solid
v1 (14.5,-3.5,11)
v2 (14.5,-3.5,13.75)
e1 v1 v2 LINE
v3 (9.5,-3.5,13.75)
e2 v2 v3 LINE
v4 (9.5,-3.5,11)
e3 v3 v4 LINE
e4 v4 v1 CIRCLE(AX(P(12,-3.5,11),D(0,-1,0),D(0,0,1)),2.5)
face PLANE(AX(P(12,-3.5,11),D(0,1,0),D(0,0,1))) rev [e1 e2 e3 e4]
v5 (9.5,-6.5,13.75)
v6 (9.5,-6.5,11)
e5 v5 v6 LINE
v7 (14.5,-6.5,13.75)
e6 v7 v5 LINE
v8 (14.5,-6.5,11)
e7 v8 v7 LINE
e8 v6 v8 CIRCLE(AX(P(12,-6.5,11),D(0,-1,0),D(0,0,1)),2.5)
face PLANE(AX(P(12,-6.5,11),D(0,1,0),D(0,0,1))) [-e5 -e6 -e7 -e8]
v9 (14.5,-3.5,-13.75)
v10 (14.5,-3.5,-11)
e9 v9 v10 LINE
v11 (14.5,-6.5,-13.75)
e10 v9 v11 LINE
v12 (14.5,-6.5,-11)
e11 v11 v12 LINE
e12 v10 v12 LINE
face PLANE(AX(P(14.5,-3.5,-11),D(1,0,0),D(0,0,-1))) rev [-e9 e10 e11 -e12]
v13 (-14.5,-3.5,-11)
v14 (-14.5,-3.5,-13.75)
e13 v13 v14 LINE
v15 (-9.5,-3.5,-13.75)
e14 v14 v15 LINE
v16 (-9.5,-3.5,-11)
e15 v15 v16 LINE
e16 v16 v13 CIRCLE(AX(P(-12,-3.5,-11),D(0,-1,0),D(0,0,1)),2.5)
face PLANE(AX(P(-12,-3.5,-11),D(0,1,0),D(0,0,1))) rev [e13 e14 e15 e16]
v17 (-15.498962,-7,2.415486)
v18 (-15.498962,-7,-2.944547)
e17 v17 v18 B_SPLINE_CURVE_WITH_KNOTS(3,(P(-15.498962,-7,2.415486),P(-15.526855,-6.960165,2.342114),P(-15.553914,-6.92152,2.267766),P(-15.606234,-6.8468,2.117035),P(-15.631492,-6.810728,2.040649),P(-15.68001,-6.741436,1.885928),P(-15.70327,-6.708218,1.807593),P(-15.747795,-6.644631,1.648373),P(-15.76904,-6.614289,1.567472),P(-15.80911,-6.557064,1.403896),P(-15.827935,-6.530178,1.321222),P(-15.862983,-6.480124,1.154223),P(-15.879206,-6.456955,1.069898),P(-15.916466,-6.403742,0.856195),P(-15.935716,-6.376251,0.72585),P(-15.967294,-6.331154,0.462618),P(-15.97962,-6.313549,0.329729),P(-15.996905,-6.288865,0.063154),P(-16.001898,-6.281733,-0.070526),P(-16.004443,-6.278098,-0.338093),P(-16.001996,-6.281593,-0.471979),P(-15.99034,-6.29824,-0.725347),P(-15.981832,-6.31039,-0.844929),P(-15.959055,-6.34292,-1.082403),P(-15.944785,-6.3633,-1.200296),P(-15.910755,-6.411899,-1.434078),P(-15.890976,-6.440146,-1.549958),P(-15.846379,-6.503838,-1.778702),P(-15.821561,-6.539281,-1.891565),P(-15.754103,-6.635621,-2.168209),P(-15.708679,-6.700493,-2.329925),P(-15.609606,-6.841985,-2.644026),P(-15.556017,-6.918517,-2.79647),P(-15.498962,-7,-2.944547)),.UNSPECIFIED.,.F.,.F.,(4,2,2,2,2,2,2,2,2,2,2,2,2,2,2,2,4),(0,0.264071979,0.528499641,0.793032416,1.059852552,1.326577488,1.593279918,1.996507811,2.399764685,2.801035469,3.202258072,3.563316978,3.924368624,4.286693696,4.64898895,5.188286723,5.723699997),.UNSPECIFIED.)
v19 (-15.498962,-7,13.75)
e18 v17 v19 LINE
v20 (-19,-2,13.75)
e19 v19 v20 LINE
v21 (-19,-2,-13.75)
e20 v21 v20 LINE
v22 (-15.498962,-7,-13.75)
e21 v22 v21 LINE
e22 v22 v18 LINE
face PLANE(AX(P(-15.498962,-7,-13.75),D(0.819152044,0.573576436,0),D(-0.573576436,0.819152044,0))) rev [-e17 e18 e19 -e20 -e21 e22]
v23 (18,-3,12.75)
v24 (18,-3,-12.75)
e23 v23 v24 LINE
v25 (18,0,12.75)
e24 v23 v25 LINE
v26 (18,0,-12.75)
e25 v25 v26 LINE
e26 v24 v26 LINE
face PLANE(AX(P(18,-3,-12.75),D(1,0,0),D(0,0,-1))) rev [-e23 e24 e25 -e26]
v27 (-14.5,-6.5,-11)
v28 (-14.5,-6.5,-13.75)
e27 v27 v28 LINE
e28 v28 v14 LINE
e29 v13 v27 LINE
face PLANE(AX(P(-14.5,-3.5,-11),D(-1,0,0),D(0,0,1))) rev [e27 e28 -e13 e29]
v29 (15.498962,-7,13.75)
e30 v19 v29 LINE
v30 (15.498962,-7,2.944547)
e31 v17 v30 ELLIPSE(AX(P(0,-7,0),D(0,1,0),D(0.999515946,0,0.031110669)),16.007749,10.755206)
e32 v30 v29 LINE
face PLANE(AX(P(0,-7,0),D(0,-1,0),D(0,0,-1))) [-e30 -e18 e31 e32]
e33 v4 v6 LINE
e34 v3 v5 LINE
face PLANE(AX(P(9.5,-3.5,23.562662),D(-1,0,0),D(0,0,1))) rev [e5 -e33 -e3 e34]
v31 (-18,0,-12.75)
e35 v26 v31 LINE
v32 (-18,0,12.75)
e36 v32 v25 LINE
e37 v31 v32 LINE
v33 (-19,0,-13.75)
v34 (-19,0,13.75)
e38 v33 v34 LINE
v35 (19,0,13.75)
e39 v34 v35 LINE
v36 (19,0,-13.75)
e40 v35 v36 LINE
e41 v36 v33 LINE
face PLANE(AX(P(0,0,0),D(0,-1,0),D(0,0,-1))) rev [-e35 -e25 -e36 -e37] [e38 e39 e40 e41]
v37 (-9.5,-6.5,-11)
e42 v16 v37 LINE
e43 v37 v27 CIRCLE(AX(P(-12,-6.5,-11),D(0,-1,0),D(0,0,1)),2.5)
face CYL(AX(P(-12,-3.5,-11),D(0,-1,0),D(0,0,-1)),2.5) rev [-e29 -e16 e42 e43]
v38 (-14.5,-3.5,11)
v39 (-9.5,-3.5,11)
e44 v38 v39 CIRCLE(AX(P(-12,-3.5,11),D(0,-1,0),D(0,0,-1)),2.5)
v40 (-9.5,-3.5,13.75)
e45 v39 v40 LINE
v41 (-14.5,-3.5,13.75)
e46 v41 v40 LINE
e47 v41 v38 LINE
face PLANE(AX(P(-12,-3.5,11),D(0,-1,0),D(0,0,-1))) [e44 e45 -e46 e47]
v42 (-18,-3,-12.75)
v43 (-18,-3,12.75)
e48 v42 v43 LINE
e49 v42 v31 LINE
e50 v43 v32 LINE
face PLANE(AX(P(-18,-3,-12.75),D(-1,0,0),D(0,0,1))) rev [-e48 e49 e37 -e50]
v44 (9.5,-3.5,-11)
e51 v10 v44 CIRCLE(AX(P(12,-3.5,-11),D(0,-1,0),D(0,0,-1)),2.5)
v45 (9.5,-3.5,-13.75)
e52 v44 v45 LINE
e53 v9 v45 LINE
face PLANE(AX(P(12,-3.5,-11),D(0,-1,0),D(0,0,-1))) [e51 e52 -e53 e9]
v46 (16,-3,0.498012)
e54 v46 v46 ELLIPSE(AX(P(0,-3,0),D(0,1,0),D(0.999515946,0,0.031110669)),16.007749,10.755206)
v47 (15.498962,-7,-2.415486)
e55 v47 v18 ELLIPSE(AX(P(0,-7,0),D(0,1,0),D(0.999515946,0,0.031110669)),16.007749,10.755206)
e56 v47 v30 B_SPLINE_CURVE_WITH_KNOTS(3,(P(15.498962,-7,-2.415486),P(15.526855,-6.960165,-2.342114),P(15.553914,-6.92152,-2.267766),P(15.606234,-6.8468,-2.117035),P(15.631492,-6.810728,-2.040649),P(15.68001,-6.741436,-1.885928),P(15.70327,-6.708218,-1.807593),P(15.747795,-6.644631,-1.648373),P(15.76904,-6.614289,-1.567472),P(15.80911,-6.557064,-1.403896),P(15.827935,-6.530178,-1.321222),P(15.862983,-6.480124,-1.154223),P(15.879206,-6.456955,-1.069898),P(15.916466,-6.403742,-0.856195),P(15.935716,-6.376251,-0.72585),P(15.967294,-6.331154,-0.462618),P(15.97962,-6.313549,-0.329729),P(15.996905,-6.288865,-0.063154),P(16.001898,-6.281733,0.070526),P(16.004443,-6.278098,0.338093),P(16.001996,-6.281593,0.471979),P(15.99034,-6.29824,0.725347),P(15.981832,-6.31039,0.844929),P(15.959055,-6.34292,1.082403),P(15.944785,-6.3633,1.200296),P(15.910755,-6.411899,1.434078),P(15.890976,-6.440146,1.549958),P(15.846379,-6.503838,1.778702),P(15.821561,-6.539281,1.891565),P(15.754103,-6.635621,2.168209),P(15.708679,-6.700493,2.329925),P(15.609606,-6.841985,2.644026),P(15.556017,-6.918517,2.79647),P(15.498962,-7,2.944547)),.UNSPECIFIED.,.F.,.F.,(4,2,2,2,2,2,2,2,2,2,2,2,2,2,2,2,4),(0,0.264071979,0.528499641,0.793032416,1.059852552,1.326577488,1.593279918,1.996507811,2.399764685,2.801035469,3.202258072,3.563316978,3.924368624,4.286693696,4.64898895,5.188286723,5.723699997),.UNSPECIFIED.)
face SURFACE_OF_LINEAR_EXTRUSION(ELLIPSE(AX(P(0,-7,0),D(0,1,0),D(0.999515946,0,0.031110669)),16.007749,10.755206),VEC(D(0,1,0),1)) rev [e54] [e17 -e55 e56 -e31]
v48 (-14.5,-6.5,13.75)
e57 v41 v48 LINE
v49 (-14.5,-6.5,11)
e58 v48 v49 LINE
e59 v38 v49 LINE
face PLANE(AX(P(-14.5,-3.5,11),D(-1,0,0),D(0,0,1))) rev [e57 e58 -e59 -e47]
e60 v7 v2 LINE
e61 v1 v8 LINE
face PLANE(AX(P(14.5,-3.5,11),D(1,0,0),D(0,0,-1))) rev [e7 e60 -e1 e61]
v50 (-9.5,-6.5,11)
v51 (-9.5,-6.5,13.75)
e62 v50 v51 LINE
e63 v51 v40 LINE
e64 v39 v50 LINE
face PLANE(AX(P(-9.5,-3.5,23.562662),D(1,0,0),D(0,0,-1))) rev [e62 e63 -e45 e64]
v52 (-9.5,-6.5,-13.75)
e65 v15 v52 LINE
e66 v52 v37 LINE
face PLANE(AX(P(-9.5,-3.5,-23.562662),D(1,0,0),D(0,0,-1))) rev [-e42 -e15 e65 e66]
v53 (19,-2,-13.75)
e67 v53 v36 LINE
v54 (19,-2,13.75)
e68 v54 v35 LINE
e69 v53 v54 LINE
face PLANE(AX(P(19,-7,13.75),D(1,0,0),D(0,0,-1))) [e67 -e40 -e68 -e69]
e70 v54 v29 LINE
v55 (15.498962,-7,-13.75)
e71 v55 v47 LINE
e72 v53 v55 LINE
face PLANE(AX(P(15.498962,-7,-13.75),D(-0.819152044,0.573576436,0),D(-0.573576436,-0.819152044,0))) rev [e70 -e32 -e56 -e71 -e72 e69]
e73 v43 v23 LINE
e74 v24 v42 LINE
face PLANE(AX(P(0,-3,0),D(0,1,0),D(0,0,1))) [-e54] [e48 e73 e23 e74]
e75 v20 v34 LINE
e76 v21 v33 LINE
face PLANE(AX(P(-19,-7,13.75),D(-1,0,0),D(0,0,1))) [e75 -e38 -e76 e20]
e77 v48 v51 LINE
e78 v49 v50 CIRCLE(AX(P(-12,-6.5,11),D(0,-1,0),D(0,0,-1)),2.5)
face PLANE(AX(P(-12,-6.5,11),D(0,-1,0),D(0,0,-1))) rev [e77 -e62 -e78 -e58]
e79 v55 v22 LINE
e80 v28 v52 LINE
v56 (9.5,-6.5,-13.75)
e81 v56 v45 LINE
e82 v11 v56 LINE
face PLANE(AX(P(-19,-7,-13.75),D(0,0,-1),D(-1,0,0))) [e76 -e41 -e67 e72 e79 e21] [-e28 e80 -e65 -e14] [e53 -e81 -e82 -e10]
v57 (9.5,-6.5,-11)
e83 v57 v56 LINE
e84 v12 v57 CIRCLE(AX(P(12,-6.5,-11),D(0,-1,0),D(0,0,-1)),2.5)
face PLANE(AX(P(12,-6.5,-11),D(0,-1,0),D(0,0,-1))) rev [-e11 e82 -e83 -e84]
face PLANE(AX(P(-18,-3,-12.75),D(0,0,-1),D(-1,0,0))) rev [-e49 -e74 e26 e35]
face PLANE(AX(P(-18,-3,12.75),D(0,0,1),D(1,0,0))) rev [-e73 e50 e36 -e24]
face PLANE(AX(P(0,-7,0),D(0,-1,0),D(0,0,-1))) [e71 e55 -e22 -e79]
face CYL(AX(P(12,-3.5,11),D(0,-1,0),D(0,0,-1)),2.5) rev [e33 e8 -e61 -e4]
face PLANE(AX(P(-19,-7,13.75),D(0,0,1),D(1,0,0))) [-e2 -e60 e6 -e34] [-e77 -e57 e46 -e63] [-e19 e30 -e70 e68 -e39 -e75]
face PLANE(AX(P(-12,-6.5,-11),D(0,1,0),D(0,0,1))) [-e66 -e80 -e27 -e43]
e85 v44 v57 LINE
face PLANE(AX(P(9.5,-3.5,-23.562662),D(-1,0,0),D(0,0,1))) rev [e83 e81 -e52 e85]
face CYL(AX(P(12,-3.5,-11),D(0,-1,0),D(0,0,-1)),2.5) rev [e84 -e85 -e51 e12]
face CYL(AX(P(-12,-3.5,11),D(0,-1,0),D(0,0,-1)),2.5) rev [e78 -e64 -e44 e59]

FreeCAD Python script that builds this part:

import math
import FreeCAD as App
import Part
import Sketcher

V = App.Vector
Q = App.Units.Quantity

doc = App.newDocument("Part")
params = doc.addObject("Spreadsheet::Sheet", "Params")
for row, (alias, value) in enumerate([
    ("sketch1_width", "38 mm"),
    ("sketch1_height", "27.5 mm"),
    ("pad1_length", "7 mm"),
    ("sketch2_width", "36 mm"),
    ("sketch2_height", "25.5 mm"),
    ("pocket1_length", "3 mm"),
    ("sketch4_radius", "2.5 mm"),
    ("pocket3_length", "3 mm"),
    ("sketch5_height", "5 mm"),
], start=1):
    params.set(f"A{row}", alias)
    params.set(f"B{row}", "=" + value)
    params.setAlias(f"B{row}", alias)

body = doc.addObject("PartDesign::Body", "Body")

# Sketch on XZ plane
sketch1 = body.newObject("Sketcher::SketchObject", "Sketch")
sketch1.AttachmentSupport = (doc.getObject("XZ_Plane"), [""])
sketch1.MapMode = "FlatFace"
sketch1.addGeometry(Part.LineSegment(V(-19, -13.75, 0), V(-19, 13.75, 0)), False)
sketch1.addGeometry(Part.LineSegment(V(-19, 13.75, 0), V(19, 13.75, 0)), False)
sketch1.addGeometry(Part.LineSegment(V(19, 13.75, 0), V(19, -13.75, 0)), False)
sketch1.addGeometry(Part.LineSegment(V(19, -13.75, 0), V(-19, -13.75, 0)), False)
sketch1.addConstraint(Sketcher.Constraint("Coincident", 0, 2, 1, 1))
sketch1.addConstraint(Sketcher.Constraint("Coincident", 1, 2, 2, 1))
sketch1.addConstraint(Sketcher.Constraint("Coincident", 2, 2, 3, 1))
sketch1.addConstraint(Sketcher.Constraint("Coincident", 3, 2, 0, 1))
sketch1.addConstraint(Sketcher.Constraint("Vertical", 0))
sketch1.addConstraint(Sketcher.Constraint("Horizontal", 1))
sketch1.addConstraint(Sketcher.Constraint("Vertical", 2))
sketch1.addConstraint(Sketcher.Constraint("Horizontal", 3))
sketch1.addConstraint(Sketcher.Constraint("Symmetric", 0, 2, 2, 2, -1, 1))
sketch1.addConstraint(Sketcher.Constraint("DistanceX", 1, 1, 1, 2, Q("38 mm")))
sketch1.addConstraint(Sketcher.Constraint("DistanceY", 0, 1, 0, 2, Q("27.5 mm")))
sketch1.setExpression("Constraints[9]", "Params.sketch1_width")
sketch1.setExpression("Constraints[10]", "Params.sketch1_height")
pad1 = body.newObject("PartDesign::Pad", "Pad")
pad1.Profile = sketch1
pad1.setExpression("Length", "Params.pad1_length")

# Sketch on XZ plane
sketch2 = body.newObject("Sketcher::SketchObject", "Sketch001")
sketch2.AttachmentSupport = (doc.getObject("XZ_Plane"), [""])
sketch2.MapMode = "FlatFace"
sketch2.addGeometry(Part.LineSegment(V(-18, -12.75, 0), V(-18, 12.75, 0)), False)
sketch2.addGeometry(Part.LineSegment(V(-18, 12.75, 0), V(18, 12.75, 0)), False)
sketch2.addGeometry(Part.LineSegment(V(18, 12.75, 0), V(18, -12.75, 0)), False)
sketch2.addGeometry(Part.LineSegment(V(18, -12.75, 0), V(-18, -12.75, 0)), False)
sketch2.addConstraint(Sketcher.Constraint("Coincident", 0, 2, 1, 1))
sketch2.addConstraint(Sketcher.Constraint("Coincident", 1, 2, 2, 1))
sketch2.addConstraint(Sketcher.Constraint("Coincident", 2, 2, 3, 1))
sketch2.addConstraint(Sketcher.Constraint("Coincident", 3, 2, 0, 1))
sketch2.addConstraint(Sketcher.Constraint("Vertical", 0))
sketch2.addConstraint(Sketcher.Constraint("Horizontal", 1))
sketch2.addConstraint(Sketcher.Constraint("Vertical", 2))
sketch2.addConstraint(Sketcher.Constraint("Horizontal", 3))
sketch2.addConstraint(Sketcher.Constraint("Symmetric", 0, 2, 2, 2, -1, 1))
sketch2.addConstraint(Sketcher.Constraint("DistanceX", 1, 1, 1, 2, Q("36 mm")))
sketch2.addConstraint(Sketcher.Constraint("DistanceY", 0, 1, 0, 2, Q("25.5 mm")))
sketch2.setExpression("Constraints[9]", "Params.sketch2_width")
sketch2.setExpression("Constraints[10]", "Params.sketch2_height")
pocket1 = body.newObject("PartDesign::Pocket", "Pocket")
pocket1.Profile = sketch2
pocket1.setExpression("Length", "Params.pocket1_length")
pocket1.Reversed = True

# Sketch on XZ plane
sketch3 = body.newObject("Sketcher::SketchObject", "Sketch002")
sketch3.AttachmentSupport = (doc.getObject("XZ_Plane"), [""])
sketch3.MapMode = "FlatFace"
sketch3.AttachmentOffset = App.Placement(V(0, 0, 3), App.Rotation())
sketch3.addGeometry(Part.Ellipse(V(16, 0.498012, 0), V(-0.334602, 10.75, 0), V(0, 0, 0)), False)
sketch3.addConstraint(Sketcher.Constraint("Block", 0))
pocket2 = body.newObject("PartDesign::Pocket", "Pocket001")
pocket2.Profile = sketch3
pocket2.Type = "ThroughAll"
pocket2.Midplane = True

# Sketch on XZ plane
sketch4 = body.newObject("Sketcher::SketchObject", "Sketch003")
sketch4.AttachmentSupport = (doc.getObject("XZ_Plane"), [""])
sketch4.MapMode = "FlatFace"
sketch4.AttachmentOffset = App.Placement(V(0, 0, 5), App.Rotation())
sketch4.addGeometry(Part.LineSegment(V(14.5, -23.562662, 0), V(14.5, -11, 0)), False)
sketch4.addGeometry(Part.ArcOfCircle(Part.Circle(V(12, -11, 0), V(0, 0, 1), 2.5), math.radians(0), math.radians(180)), False)
sketch4.addGeometry(Part.LineSegment(V(9.5, -11, 0), V(9.5, -23.562662, 0)), False)
sketch4.addGeometry(Part.LineSegment(V(9.5, -23.562662, 0), V(14.5, -23.562662, 0)), False)
sketch4.addGeometry(Part.LineSegment(V(-9.5, -23.562662, 0), V(-9.5, -11, 0)), False)
sketch4.addGeometry(Part.ArcOfCircle(Part.Circle(V(-12, -11, 0), V(0, 0, 1), 2.5), math.radians(0), math.radians(180)), False)
sketch4.addGeometry(Part.LineSegment(V(-14.5, -11, 0), V(-14.5, -23.562662, 0)), False)
sketch4.addGeometry(Part.LineSegment(V(-14.5, -23.562662, 0), V(-9.5, -23.562662, 0)), False)
sketch4.addGeometry(Part.LineSegment(V(-14.5, 23.562662, 0), V(-14.5, 11, 0)), False)
sketch4.addGeometry(Part.ArcOfCircle(Part.Circle(V(-12, 11, 0), V(0, 0, 1), 2.5), math.radians(180), math.radians(360)), False)
sketch4.addGeometry(Part.LineSegment(V(-9.5, 11, 0), V(-9.5, 23.562662, 0)), False)
sketch4.addGeometry(Part.LineSegment(V(-9.5, 23.562662, 0), V(-14.5, 23.562662, 0)), False)
sketch4.addGeometry(Part.LineSegment(V(9.5, 23.562662, 0), V(9.5, 11, 0)), False)
sketch4.addGeometry(Part.ArcOfCircle(Part.Circle(V(12, 11, 0), V(0, 0, 1), 2.5), math.radians(180), math.radians(360)), False)
sketch4.addGeometry(Part.LineSegment(V(14.5, 11, 0), V(14.5, 23.562662, 0)), False)
sketch4.addGeometry(Part.LineSegment(V(14.5, 23.562662, 0), V(9.5, 23.562662, 0)), False)
sketch4.addConstraint(Sketcher.Constraint("Tangent", 0, 2, 1, 1))
sketch4.addConstraint(Sketcher.Constraint("Tangent", 1, 2, 2, 1))
sketch4.addConstraint(Sketcher.Constraint("Coincident", 2, 2, 3, 1))
sketch4.addConstraint(Sketcher.Constraint("Coincident", 3, 2, 0, 1))
sketch4.addConstraint(Sketcher.Constraint("Tangent", 4, 2, 5, 1))
sketch4.addConstraint(Sketcher.Constraint("Tangent", 5, 2, 6, 1))
sketch4.addConstraint(Sketcher.Constraint("Coincident", 6, 2, 7, 1))
sketch4.addConstraint(Sketcher.Constraint("Coincident", 7, 2, 4, 1))
sketch4.addConstraint(Sketcher.Constraint("Tangent", 8, 2, 9, 1))
sketch4.addConstraint(Sketcher.Constraint("Tangent", 9, 2, 10, 1))
sketch4.addConstraint(Sketcher.Constraint("Coincident", 10, 2, 11, 1))
sketch4.addConstraint(Sketcher.Constraint("Coincident", 11, 2, 8, 1))
sketch4.addConstraint(Sketcher.Constraint("Tangent", 12, 2, 13, 1))
sketch4.addConstraint(Sketcher.Constraint("Tangent", 13, 2, 14, 1))
sketch4.addConstraint(Sketcher.Constraint("Coincident", 14, 2, 15, 1))
sketch4.addConstraint(Sketcher.Constraint("Coincident", 15, 2, 12, 1))
sketch4.addConstraint(Sketcher.Constraint("Vertical", 0))
sketch4.addConstraint(Sketcher.Constraint("Vertical", 2))
sketch4.addConstraint(Sketcher.Constraint("Horizontal", 3))
sketch4.addConstraint(Sketcher.Constraint("Vertical", 4))
sketch4.addConstraint(Sketcher.Constraint("Vertical", 6))
sketch4.addConstraint(Sketcher.Constraint("Horizontal", 7))
sketch4.addConstraint(Sketcher.Constraint("Vertical", 8))
sketch4.addConstraint(Sketcher.Constraint("Vertical", 10))
sketch4.addConstraint(Sketcher.Constraint("Horizontal", 11))
sketch4.addConstraint(Sketcher.Constraint("Vertical", 12))
sketch4.addConstraint(Sketcher.Constraint("Vertical", 14))
sketch4.addConstraint(Sketcher.Constraint("Horizontal", 15))
sketch4.addConstraint(Sketcher.Constraint("Equal", 1, 5))
sketch4.addConstraint(Sketcher.Constraint("Equal", 5, 9))
sketch4.addConstraint(Sketcher.Constraint("Equal", 9, 13))
sketch4.addConstraint(Sketcher.Constraint("Symmetric", 1, 3, 9, 3, -1, 1))
sketch4.addConstraint(Sketcher.Constraint("Symmetric", 5, 3, 13, 3, -1, 1))
sketch4.addConstraint(Sketcher.Constraint("Symmetric", 1, 3, 5, 3, -2))
sketch4.addConstraint(Sketcher.Constraint("Horizontal", 3, 2, 6, 2))
sketch4.addConstraint(Sketcher.Constraint("Horizontal", 11, 2, 14, 2))
sketch4.addConstraint(Sketcher.Constraint("Equal", 6, 8))
sketch4.addConstraint(Sketcher.Constraint("Radius", 1, Q("2.5 mm")))
sketch4.addConstraint(Sketcher.Constraint("DistanceX", -1, 1, 1, 3, Q("12 mm")))
sketch4.addConstraint(Sketcher.Constraint("DistanceY", 1, 3, -1, 1, Q("11 mm")))
sketch4.addConstraint(Sketcher.Constraint("DistanceY", 0, 1, 0, 2, Q("12.562662 mm")))
sketch4.setExpression("Constraints[37]", "Params.sketch4_radius")
pocket3 = body.newObject("PartDesign::Pocket", "Pocket002")
pocket3.Profile = sketch4
pocket3.setExpression("Length", "Params.pocket3_length")
pocket3.Midplane = True

# Sketch on XY plane
sketch5 = body.newObject("Sketcher::SketchObject", "Sketch004")
sketch5.AttachmentSupport = (doc.getObject("XY_Plane"), [""])
sketch5.MapMode = "FlatFace"
sketch5.addGeometry(Part.LineSegment(V(-15.498962, -7, 0), V(-19, -2, 0)), False)
sketch5.addGeometry(Part.LineSegment(V(-19, -2, 0), V(-19, -7, 0)), False)
sketch5.addGeometry(Part.LineSegment(V(-19, -7, 0), V(-15.498962, -7, 0)), False)
sketch5.addGeometry(Part.LineSegment(V(15.498962, -7, 0), V(19, -7, 0)), False)
sketch5.addGeometry(Part.LineSegment(V(19, -7, 0), V(19, -2, 0)), False)
sketch5.addGeometry(Part.LineSegment(V(19, -2, 0), V(15.498962, -7, 0)), False)
sketch5.addConstraint(Sketcher.Constraint("Coincident", 0, 2, 1, 1))
sketch5.addConstraint(Sketcher.Constraint("Coincident", 1, 2, 2, 1))
sketch5.addConstraint(Sketcher.Constraint("Coincident", 2, 2, 0, 1))
sketch5.addConstraint(Sketcher.Constraint("Coincident", 3, 2, 4, 1))
sketch5.addConstraint(Sketcher.Constraint("Coincident", 4, 2, 5, 1))
sketch5.addConstraint(Sketcher.Constraint("Coincident", 5, 2, 3, 1))
sketch5.addConstraint(Sketcher.Constraint("Vertical", 1))
sketch5.addConstraint(Sketcher.Constraint("Horizontal", 2))
sketch5.addConstraint(Sketcher.Constraint("Horizontal", 3))
sketch5.addConstraint(Sketcher.Constraint("Vertical", 4))
sketch5.addConstraint(Sketcher.Constraint("Symmetric", 1, 2, 3, 2, -2))
sketch5.addConstraint(Sketcher.Constraint("Horizontal", 0, 2, 4, 2))
sketch5.addConstraint(Sketcher.Constraint("Equal", 2, 3))
sketch5.addConstraint(Sketcher.Constraint("DistanceY", 1, 2, 1, 1, Q("5 mm")))
sketch5.addConstraint(Sketcher.Constraint("Angle", 0, Q("125 deg")))
sketch5.addConstraint(Sketcher.Constraint("DistanceX", 0, 2, -1, 1, Q("19 mm")))
sketch5.addConstraint(Sketcher.Constraint("DistanceY", 0, 2, -1, 1, Q("2 mm")))
sketch5.setExpression("Constraints[13]", "Params.sketch5_height")
pocket4 = body.newObject("PartDesign::Pocket", "Pocket003")
pocket4.Profile = sketch5
pocket4.Type = "ThroughAll"
pocket4.Midplane = True

doc.recompute()
